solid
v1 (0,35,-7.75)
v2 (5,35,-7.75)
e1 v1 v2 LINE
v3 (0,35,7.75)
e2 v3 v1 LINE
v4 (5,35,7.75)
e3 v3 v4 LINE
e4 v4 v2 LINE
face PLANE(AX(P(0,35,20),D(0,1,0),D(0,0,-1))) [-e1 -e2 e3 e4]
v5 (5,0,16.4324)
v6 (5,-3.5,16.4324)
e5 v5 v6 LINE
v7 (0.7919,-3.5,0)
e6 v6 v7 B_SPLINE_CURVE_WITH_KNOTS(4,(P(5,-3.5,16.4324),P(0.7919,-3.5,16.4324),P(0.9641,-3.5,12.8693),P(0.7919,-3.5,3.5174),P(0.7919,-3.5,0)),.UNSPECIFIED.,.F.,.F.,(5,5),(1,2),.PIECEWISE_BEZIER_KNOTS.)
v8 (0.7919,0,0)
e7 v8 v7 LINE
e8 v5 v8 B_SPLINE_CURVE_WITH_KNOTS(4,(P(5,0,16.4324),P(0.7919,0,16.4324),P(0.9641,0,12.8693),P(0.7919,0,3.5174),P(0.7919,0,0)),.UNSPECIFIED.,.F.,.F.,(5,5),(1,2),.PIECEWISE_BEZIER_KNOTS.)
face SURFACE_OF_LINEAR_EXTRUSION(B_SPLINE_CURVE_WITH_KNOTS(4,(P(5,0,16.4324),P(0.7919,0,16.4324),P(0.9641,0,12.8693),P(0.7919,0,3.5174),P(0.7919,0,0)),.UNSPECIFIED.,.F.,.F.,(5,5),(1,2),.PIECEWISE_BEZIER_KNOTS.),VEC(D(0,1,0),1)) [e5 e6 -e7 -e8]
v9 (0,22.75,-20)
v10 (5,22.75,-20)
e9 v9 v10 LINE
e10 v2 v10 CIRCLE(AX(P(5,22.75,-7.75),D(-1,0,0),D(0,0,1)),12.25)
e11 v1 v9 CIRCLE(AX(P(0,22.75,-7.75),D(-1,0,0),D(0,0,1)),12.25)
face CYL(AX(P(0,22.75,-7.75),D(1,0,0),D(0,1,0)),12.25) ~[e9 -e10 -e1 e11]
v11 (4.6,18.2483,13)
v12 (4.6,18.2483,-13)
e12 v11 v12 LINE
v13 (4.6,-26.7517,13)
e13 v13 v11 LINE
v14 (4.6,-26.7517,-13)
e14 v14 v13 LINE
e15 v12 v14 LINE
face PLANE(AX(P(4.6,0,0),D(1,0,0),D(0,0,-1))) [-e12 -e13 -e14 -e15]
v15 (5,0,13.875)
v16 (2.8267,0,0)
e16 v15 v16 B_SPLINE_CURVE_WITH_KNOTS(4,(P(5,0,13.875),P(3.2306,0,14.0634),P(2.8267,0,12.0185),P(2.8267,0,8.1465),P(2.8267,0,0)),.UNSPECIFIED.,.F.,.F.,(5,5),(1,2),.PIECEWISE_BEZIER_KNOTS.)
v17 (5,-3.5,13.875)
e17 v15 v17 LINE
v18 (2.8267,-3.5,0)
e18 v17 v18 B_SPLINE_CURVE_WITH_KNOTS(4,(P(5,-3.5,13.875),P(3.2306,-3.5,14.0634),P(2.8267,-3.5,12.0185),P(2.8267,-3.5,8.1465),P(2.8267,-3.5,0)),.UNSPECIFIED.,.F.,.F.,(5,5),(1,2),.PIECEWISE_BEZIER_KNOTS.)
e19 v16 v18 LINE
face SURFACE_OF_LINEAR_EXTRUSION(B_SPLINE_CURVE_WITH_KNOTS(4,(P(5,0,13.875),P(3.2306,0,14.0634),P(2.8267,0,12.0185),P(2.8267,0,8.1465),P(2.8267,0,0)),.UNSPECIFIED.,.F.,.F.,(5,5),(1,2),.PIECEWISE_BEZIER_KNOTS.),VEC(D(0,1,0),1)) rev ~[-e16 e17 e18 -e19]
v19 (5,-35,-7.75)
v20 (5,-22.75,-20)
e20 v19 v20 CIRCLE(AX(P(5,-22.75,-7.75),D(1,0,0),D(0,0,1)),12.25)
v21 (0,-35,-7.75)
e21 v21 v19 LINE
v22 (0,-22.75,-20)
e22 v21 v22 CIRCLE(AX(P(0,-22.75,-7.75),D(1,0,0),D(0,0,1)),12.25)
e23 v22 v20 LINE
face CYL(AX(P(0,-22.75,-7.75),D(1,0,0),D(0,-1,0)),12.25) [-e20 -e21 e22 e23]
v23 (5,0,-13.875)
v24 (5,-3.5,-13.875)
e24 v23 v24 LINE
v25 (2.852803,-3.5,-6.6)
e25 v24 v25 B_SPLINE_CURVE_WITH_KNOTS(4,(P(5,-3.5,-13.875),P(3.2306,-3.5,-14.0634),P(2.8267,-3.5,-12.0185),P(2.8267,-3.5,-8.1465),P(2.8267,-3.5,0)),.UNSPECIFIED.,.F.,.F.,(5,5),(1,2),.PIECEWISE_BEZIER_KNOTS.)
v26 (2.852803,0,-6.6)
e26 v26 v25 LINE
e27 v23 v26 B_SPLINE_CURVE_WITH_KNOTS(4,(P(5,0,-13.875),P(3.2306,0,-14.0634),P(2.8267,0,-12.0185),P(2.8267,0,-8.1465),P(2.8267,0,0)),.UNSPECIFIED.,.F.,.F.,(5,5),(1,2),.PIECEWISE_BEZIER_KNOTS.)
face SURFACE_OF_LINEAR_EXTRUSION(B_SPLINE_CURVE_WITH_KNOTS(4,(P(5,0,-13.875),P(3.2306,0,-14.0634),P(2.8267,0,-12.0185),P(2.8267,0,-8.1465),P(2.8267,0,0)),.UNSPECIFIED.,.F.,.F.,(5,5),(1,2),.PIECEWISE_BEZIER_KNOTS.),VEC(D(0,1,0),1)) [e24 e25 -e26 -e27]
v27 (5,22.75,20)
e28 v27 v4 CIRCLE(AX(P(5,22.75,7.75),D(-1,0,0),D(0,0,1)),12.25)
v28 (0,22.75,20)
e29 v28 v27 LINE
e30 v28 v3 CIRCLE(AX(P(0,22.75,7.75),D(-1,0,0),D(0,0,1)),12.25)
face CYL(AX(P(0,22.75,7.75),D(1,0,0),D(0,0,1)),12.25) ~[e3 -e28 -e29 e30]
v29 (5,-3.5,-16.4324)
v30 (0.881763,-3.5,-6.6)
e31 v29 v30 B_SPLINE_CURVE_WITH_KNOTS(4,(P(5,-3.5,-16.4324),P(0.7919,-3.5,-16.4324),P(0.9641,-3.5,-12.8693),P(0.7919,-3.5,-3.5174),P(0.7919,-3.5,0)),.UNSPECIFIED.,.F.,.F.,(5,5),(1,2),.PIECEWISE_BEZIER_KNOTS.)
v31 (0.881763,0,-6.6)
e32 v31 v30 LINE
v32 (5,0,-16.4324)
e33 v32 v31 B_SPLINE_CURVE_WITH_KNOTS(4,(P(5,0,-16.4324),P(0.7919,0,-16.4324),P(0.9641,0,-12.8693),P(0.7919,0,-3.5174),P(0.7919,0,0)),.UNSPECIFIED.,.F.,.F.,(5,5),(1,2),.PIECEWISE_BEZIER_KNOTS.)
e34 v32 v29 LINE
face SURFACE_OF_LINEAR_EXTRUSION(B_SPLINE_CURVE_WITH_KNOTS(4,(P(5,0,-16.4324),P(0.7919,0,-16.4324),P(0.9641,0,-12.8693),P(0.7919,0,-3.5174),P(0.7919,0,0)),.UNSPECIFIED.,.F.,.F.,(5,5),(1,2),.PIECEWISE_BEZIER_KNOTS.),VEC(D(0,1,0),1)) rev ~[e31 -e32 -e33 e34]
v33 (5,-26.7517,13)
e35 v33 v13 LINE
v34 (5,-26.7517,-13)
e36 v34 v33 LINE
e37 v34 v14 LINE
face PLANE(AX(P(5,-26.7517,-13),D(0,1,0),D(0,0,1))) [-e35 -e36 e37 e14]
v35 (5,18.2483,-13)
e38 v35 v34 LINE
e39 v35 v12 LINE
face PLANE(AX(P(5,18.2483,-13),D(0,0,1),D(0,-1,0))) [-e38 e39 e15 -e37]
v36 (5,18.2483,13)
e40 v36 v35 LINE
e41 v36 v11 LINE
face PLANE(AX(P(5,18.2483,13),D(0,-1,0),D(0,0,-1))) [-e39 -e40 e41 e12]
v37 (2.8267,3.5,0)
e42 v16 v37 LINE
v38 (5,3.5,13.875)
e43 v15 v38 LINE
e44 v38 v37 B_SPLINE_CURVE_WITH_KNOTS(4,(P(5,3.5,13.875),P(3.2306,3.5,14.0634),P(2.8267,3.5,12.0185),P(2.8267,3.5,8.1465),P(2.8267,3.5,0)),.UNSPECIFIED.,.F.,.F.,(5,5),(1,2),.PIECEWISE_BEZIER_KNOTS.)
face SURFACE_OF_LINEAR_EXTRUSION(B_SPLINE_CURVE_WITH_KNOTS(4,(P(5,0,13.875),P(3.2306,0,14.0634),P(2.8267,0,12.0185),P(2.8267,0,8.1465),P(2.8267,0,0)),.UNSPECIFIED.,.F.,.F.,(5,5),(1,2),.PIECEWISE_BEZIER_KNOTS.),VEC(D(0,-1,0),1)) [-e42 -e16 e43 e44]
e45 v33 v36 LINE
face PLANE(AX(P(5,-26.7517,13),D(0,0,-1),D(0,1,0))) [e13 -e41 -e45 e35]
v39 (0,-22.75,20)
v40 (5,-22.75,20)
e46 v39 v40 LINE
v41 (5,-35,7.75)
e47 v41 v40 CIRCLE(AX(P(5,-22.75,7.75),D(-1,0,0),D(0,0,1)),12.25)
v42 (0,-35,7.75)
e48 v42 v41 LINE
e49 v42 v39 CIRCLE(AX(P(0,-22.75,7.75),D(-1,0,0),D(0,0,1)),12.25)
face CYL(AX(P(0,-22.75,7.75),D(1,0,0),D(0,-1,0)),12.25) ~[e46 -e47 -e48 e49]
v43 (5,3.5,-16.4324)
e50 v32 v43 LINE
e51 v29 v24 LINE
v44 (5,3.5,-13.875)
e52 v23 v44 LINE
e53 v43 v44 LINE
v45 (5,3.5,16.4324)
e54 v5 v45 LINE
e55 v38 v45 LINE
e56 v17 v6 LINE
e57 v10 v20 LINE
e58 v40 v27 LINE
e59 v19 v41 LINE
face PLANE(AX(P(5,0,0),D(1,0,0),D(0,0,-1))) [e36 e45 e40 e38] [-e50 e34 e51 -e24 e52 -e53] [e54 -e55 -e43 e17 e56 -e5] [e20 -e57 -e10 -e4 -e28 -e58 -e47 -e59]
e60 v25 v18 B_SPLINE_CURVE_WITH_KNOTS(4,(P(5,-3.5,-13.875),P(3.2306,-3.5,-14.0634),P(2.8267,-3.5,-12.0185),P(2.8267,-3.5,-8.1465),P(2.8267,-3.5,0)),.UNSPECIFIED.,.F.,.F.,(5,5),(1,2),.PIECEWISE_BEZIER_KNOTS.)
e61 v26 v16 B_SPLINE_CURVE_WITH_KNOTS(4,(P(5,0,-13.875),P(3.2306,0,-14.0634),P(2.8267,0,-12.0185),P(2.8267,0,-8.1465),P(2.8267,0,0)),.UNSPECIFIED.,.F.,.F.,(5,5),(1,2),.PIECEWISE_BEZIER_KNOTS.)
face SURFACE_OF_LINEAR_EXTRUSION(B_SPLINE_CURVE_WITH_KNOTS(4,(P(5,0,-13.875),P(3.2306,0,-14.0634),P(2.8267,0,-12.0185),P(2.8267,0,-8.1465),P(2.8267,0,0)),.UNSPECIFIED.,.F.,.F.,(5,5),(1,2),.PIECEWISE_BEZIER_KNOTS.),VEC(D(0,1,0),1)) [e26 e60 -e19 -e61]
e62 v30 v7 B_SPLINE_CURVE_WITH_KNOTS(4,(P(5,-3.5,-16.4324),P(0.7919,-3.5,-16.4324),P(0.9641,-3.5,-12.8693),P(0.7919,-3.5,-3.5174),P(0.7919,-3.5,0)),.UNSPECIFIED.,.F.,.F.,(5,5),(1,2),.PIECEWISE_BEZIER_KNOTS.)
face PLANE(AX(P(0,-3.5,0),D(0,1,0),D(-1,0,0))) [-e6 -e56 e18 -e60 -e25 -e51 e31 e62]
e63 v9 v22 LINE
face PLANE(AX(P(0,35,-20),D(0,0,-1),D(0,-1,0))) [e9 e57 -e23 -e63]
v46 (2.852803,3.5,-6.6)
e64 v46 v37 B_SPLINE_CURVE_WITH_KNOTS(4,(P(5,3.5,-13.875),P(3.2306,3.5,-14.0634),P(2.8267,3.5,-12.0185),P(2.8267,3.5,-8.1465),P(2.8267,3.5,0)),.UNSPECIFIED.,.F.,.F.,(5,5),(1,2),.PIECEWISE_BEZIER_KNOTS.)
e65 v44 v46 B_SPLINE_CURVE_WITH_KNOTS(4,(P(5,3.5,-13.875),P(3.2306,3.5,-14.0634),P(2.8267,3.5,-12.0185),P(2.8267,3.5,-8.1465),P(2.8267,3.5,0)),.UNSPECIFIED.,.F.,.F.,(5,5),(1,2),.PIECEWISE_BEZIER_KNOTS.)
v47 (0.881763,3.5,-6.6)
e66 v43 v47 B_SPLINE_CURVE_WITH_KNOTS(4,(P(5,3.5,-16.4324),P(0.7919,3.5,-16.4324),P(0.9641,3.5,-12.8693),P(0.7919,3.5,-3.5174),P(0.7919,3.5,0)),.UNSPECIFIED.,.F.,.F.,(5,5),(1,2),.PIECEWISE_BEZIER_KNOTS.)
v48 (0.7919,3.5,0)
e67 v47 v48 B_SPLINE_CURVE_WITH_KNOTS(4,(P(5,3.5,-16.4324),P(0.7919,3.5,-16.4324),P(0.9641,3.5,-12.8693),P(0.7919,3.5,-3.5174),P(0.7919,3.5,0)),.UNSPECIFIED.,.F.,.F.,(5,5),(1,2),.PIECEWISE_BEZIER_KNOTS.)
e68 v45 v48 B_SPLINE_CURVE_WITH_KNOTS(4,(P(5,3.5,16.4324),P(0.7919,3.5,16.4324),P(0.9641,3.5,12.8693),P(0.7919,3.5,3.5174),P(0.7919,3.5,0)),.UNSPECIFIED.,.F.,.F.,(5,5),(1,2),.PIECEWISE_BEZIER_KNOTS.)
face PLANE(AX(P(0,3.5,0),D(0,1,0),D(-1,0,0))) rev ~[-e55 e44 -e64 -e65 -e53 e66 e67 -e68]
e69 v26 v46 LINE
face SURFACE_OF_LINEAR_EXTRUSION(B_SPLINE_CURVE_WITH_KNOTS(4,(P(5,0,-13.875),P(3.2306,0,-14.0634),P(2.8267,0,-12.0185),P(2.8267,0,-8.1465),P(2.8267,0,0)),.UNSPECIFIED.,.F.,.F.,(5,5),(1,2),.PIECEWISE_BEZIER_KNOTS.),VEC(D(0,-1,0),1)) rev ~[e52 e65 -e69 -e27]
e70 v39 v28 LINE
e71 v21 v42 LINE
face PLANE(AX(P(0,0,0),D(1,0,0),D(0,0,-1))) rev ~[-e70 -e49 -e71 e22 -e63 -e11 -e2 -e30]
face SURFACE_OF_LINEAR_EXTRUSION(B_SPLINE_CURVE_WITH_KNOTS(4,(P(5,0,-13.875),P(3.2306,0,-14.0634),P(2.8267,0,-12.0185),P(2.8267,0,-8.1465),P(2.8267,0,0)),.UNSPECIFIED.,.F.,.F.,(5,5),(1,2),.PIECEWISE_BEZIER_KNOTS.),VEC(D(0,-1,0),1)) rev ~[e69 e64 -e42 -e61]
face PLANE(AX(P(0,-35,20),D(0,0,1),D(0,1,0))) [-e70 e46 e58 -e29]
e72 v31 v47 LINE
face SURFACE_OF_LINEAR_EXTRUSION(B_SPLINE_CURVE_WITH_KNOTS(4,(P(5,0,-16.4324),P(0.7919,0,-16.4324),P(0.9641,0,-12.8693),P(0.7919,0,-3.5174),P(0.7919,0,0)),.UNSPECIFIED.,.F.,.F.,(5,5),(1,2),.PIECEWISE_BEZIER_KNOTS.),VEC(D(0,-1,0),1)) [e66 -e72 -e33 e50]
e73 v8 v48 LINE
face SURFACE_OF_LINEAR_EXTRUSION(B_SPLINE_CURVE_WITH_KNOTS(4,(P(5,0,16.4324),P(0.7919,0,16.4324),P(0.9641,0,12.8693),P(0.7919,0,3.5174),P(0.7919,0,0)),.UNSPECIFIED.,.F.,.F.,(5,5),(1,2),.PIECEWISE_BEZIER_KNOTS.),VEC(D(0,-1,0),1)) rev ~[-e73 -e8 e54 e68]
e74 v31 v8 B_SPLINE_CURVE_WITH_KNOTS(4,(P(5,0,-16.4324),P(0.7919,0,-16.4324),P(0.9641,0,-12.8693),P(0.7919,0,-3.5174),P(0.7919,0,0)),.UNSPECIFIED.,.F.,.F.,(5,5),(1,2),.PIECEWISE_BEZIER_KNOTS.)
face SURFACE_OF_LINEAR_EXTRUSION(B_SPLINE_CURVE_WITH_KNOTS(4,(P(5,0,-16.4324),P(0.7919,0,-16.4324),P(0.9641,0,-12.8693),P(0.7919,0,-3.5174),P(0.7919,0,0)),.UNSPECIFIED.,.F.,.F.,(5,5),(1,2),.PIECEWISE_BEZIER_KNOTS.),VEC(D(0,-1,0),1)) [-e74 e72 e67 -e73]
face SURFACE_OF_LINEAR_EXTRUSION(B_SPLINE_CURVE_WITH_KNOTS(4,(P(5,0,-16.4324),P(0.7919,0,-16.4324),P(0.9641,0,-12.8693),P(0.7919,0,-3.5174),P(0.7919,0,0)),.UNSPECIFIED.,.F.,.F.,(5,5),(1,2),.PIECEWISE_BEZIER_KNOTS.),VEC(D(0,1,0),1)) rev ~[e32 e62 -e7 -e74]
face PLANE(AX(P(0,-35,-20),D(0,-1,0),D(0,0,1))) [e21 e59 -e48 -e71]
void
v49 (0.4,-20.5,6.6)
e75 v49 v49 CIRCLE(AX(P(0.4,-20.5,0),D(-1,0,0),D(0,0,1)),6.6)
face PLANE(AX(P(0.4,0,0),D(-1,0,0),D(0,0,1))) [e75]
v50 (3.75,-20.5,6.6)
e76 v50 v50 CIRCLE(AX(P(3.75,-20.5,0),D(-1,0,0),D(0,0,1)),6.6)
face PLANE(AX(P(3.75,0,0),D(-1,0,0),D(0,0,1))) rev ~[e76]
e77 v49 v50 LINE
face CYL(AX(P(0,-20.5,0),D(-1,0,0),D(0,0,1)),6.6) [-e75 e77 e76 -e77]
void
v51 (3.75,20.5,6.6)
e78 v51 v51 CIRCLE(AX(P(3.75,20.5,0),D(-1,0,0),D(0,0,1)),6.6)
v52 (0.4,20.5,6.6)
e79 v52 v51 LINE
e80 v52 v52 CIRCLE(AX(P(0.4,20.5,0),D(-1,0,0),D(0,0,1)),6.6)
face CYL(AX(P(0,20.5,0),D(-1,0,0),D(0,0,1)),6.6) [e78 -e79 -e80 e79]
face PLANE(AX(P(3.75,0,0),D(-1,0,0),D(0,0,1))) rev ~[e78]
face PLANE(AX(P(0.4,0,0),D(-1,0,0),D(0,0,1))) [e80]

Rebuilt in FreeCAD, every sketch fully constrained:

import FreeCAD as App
import Part
import Sketcher
Q = App.Units.Quantity


def edges_at(feature, points):
    """Names of the edges that pass closest to the given points."""
    edges = feature.Shape.Edges
    near = lambda p: min(range(len(edges)), key=lambda i: edges[i].distToShape(Part.Vertex(*p))[0])
    return sorted({f"Edge{near(p) + 1}" for p in points})


def add_polygon(sketch, points):
    """Adds a closed chain of lines whose ends are joined by coincident constraints."""
    first, n = sketch.GeometryCount, len(points)
    for a, b in zip(points, points[1:] + points[:1]):
        sketch.addGeometry(Part.LineSegment(App.Vector(*a, 0), App.Vector(*b, 0)), False)
    for i in range(n):
        sketch.addConstraint(Sketcher.Constraint("Coincident", first + i, 2, first + (i + 1) % n, 1))

doc = App.newDocument("Part")
body = doc.addObject("PartDesign::Body", "Body")

# Sketch on YZ plane
sketch1 = body.newObject("Sketcher::SketchObject", "Sketch")
sketch1.AttachmentSupport = (doc.getObject("YZ_Plane"), [""])
sketch1.MapMode = "FlatFace"
add_polygon(sketch1, [(-35, 20), (-35, -20), (35, -20), (35, 20)])  # lines 0-3
sketch1.addConstraint(Sketcher.Constraint("Vertical", 0))
sketch1.addConstraint(Sketcher.Constraint("Horizontal", 1))
sketch1.addConstraint(Sketcher.Constraint("Vertical", 2))
sketch1.addConstraint(Sketcher.Constraint("Horizontal", 3))
sketch1.addConstraint(Sketcher.Constraint("Symmetric", 0, 2, 2, 2, -1, 1))
sketch1.addConstraint(Sketcher.Constraint("DistanceX", 1, 1, 1, 2, Q("70 mm")))
sketch1.addConstraint(Sketcher.Constraint("DistanceY", 0, 2, 0, 1, Q("40 mm")))
pad1 = body.newObject("PartDesign::Pad", "Pad")
pad1.Profile = sketch1
pad1.Length = 5
doc.recompute()

fillet = body.newObject("PartDesign::Fillet", "Fillet")
fillet.Base = (pad1, edges_at(pad1, [
    (2.5, -35, 20),
    (2.5, -35, -20),
    (2.5, 35, -20),
    (2.5, 35, 20),
]))
fillet.Radius = 12.25

# Sketch on YZ plane
sketch2 = body.newObject("Sketcher::SketchObject", "Sketch001")
sketch2.AttachmentSupport = (doc.getObject("YZ_Plane"), [""])
sketch2.MapMode = "FlatFace"
sketch2.addGeometry(Part.Circle(App.Vector(-20, 0, 0), App.Vector(0, 0, 1), 7), False)
sketch2.addGeometry(Part.Circle(App.Vector(20, 0, 0), App.Vector(0, 0, 1), 7), False)
sketch2.addConstraint(Sketcher.Constraint("Equal", 0, 1))
sketch2.addConstraint(Sketcher.Constraint("Symmetric", 0, 3, 1, 3, -1, 1))
sketch2.addConstraint(Sketcher.Constraint("PointOnObject", 0, 3, -1))
sketch2.addConstraint(Sketcher.Constraint("Diameter", 0, Q("13.2 mm")))
sketch2.addConstraint(Sketcher.Constraint("DistanceX", 0, 3, 1, 3, Q("41 mm")))
pocket1 = body.newObject("PartDesign::Pocket", "Pocket")
pocket1.Profile = sketch2
pocket1.Length = 3.75
pocket1.Reversed = True

# Sketch on YZ plane
sketch3 = body.newObject("Sketcher::SketchObject", "Sketch002")
sketch3.AttachmentSupport = (doc.getObject("YZ_Plane"), [""])
sketch3.MapMode = "FlatFace"
sketch3.addGeometry(Part.Circle(App.Vector(20, 0, 0), App.Vector(0, 0, 1), 7), False)
sketch3.addGeometry(Part.Circle(App.Vector(-20, 0, 0), App.Vector(0, 0, 1), 7), False)
sketch3.addConstraint(Sketcher.Constraint("Equal", 0, 1))
sketch3.addConstraint(Sketcher.Constraint("Symmetric", 0, 3, 1, 3, -1, 1))
sketch3.addConstraint(Sketcher.Constraint("PointOnObject", 0, 3, -1))
sketch3.addConstraint(Sketcher.Constraint("Diameter", 0, Q("13.2 mm")))
sketch3.addConstraint(Sketcher.Constraint("DistanceX", 1, 3, 0, 3, Q("41 mm")))
pad2 = body.newObject("PartDesign::Pad", "Pad001")
pad2.Profile = sketch3
pad2.Length = 0.4

# Sketch on YZ plane
sketch4 = body.newObject("Sketcher::SketchObject", "Sketch003")
sketch4.AttachmentSupport = (doc.getObject("YZ_Plane"), [""])
sketch4.MapMode = "FlatFace"
sketch4.AttachmentOffset = App.Placement(App.Vector(0, 0, 5), App.Rotation())
add_polygon(sketch4, [(-27, 13), (-27, -13), (18, -13), (18, 13)])  # lines 0-3
sketch4.addConstraint(Sketcher.Constraint("Vertical", 0))
sketch4.addConstraint(Sketcher.Constraint("Horizontal", 1))
sketch4.addConstraint(Sketcher.Constraint("Vertical", 2))
sketch4.addConstraint(Sketcher.Constraint("Horizontal", 3))
sketch4.addConstraint(Sketcher.Constraint("DistanceX", 1, 1, 1, 2, Q("45 mm")))
sketch4.addConstraint(Sketcher.Constraint("DistanceY", 0, 2, 0, 1, Q("26 mm")))
sketch4.addConstraint(Sketcher.Constraint("DistanceY", 0, 2, -1, 1, Q("13 mm")))
sketch4.addConstraint(Sketcher.Constraint("DistanceX", 0, 2, -1, 1, Q("26.7517 mm")))
pocket2 = body.newObject("PartDesign::Pocket", "Pocket001")
pocket2.Profile = sketch4
pocket2.Length = 0.4

# Sketch on XZ plane
sketch5 = body.newObject("Sketcher::SketchObject", "Sketch004")
sketch5.AttachmentSupport = (doc.getObject("XZ_Plane"), [""])
sketch5.MapMode = "FlatFace"
sketch5.addGeometry(Part.LineSegment(App.Vector(5, -13.875, 0), App.Vector(5, -16.4324, 0)), False)
sketch5.addGeometry(Part.BSplineCurve([App.Vector(5, -16.4324, 0), App.Vector(2.119439, -16.4324, 0), App.Vector(1.291391, -14.762809, 0), App.Vector(1.000386, -10.709722, 0), App.Vector(0.881763, -6.6, 0)], [5, 5], [1, 1.684527786], False, 4, [1, 1, 1, 1, 1], False), False)
sketch5.addGeometry(Part.BSplineCurve([App.Vector(0.881763, -6.6, 0), App.Vector(0.827094, -4.705989, 0), App.Vector(0.809038, -2.799949, 0), App.Vector(0.7919, -1.109642, 0), App.Vector(0.7919, 0, 0)], [5, 5], [1.684527786, 2], False, 4, [1, 1, 1, 1, 1], False), False)
sketch5.addGeometry(Part.BSplineCurve([App.Vector(5, 16.4324, 0), App.Vector(0.7919, 16.4324, 0), App.Vector(0.9641, 12.8693, 0), App.Vector(0.7919, 3.5174, 0), App.Vector(0.7919, 0, 0)], [5, 5], [1, 2], False, 4, [1, 1, 1, 1, 1], False), False)
sketch5.addGeometry(Part.LineSegment(App.Vector(5, 16.4324, 0), App.Vector(5, 13.875, 0)), False)
sketch5.addGeometry(Part.BSplineCurve([App.Vector(5, 13.875, 0), App.Vector(3.2306, 14.0634, 0), App.Vector(2.8267, 12.0185, 0), App.Vector(2.8267, 8.1465, 0), App.Vector(2.8267, 0, 0)], [5, 5], [1, 2], False, 4, [1, 1, 1, 1, 1], False), False)
sketch5.addGeometry(Part.BSplineCurve([App.Vector(2.852803, -6.6, 0), App.Vector(2.832715, -5.27305, 0), App.Vector(2.8267, -3.749804, 0), App.Vector(2.8267, -2.00427, 0), App.Vector(2.8267, 0, 0)], [5, 5], [1.753971674, 2], False, 4, [1, 1, 1, 1, 1], False), False)
sketch5.addGeometry(Part.BSplineCurve([App.Vector(5, -13.875, 0), App.Vector(3.665923, -14.017048, 0), App.Vector(3.108095, -12.889525, 0), App.Vector(2.914364, -10.666533, 0), App.Vector(2.852803, -6.6, 0)], [5, 5], [1, 1.753971674], False, 4, [1, 1, 1, 1, 1], False), False)
sketch5.addConstraint(Sketcher.Constraint("Block", 1))
sketch5.addConstraint(Sketcher.Constraint("Block", 2))
sketch5.addConstraint(Sketcher.Constraint("Block", 3))
sketch5.addConstraint(Sketcher.Constraint("Block", 5))
sketch5.addConstraint(Sketcher.Constraint("Block", 6))
sketch5.addConstraint(Sketcher.Constraint("Block", 7))
sketch5.addConstraint(Sketcher.Constraint("Coincident", 0, 2, 1, 1))
sketch5.addConstraint(Sketcher.Constraint("Coincident", 3, 1, 4, 1))
sketch5.addConstraint(Sketcher.Constraint("Coincident", 4, 2, 5, 1))
sketch5.addConstraint(Sketcher.Constraint("Coincident", 7, 1, 0, 1))
pocket3 = body.newObject("PartDesign::Pocket", "Pocket002")
pocket3.Profile = sketch5
pocket3.Length = 7
pocket3.Midplane = True

doc.recompute()
